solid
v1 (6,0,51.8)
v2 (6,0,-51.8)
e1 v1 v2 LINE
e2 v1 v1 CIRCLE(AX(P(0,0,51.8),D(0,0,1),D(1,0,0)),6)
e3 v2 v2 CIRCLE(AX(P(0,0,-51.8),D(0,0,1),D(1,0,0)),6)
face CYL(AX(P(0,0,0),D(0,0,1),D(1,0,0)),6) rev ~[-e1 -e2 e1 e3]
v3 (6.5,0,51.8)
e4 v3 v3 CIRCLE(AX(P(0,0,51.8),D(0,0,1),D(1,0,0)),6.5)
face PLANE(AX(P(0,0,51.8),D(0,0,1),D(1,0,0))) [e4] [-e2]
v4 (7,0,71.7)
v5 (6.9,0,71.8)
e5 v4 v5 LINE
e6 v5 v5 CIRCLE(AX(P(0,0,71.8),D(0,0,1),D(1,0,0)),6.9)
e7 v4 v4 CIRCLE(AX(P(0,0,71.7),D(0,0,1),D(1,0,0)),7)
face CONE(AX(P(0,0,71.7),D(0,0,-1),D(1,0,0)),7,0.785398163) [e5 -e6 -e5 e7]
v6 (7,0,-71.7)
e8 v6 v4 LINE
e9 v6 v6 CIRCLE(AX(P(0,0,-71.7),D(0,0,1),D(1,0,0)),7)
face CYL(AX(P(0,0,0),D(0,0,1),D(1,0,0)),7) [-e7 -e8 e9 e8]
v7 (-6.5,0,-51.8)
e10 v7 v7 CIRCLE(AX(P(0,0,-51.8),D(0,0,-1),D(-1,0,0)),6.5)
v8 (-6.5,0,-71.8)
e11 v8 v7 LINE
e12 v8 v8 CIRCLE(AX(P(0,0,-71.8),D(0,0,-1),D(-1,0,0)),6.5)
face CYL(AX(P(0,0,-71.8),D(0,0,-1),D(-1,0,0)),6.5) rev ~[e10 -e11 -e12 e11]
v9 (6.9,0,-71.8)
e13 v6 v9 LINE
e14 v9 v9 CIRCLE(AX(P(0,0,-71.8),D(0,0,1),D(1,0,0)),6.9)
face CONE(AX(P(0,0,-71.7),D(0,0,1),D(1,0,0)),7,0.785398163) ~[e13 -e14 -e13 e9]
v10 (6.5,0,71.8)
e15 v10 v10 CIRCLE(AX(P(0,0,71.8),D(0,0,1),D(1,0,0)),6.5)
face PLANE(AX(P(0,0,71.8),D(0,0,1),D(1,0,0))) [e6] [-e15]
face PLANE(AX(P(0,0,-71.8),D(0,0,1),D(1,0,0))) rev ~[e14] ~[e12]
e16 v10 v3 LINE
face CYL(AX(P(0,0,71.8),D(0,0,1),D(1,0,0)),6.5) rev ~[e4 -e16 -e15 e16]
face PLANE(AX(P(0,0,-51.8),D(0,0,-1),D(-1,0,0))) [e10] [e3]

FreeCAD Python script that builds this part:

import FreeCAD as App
import Part
import Sketcher

V = App.Vector


def edges_at(feature, points):
    """Names of the edges that pass closest to the given points."""
    edges = feature.Shape.Edges
    near = lambda p: min(range(len(edges)), key=lambda i: edges[i].distToShape(Part.Vertex(*p))[0])
    return sorted({f"Edge{near(p) + 1}" for p in points})

doc = App.newDocument("Part")
params = doc.addObject("Spreadsheet::Sheet", "Params")
for row, (alias, value) in enumerate([
    ("sketch1_diameter", "14 mm"),
    ("sketch1_diameter2", "12 mm"),
    ("pad1_length", "143.6 mm"),
    ("chamfer_size", "0.1 mm"),
    ("sketch2_diameter", "13 mm"),
    ("sketch2_diameter2", "12 mm"),
    ("pocket1_length", "20 mm"),
    ("sketch3_diameter", "13 mm"),
    ("pocket2_length", "20 mm"),
], start=1):
    params.set(f"A{row}", alias)
    params.set(f"B{row}", "=" + value)
    params.setAlias(f"B{row}", alias)

body = doc.addObject("PartDesign::Body", "Body")

# Sketch on XY plane
sketch1 = doc.addObject("Sketcher::SketchObject", "Sketch")
body.addObject(sketch1)
sketch1.AttachmentSupport = (doc.XY_Plane, [""])
sketch1.MapMode = "FlatFace"
sketch1.addGeometry(Part.Circle(V(0, 0, 0), V(0, 0, 1), 7), False)
sketch1.addGeometry(Part.Circle(V(0, 0, 0), V(0, 0, 1), 6), False)
sketch1.addConstraint(Sketcher.Constraint("Coincident", 0, 3, -1, 1))
sketch1.addConstraint(Sketcher.Constraint("Coincident", 1, 3, -1, 1))
sketch1.addConstraint(Sketcher.Constraint("Diameter", 0, 14.0))
sketch1.addConstraint(Sketcher.Constraint("Diameter", 1, 12.0))
sketch1.setExpression("Constraints[2]", "Params.sketch1_diameter")
sketch1.setExpression("Constraints[3]", "Params.sketch1_diameter2")
pad1 = doc.addObject("PartDesign::Pad", "Pad")
body.addObject(pad1)
pad1.Profile = sketch1
pad1.setExpression("Length", "Params.pad1_length")
pad1.Midplane = True
doc.recompute()

chamfer = doc.addObject("PartDesign::Chamfer", "Chamfer")
body.addObject(chamfer)
chamfer.Base = (pad1, edges_at(pad1, [
    (-6, 0, 71.8),
    (-7, 0, 71.8),
    (-7, 0, -71.8),
    (-6, 0, -71.8),
]))
chamfer.setExpression("Size", "Params.chamfer_size")

# Sketch on XY plane
sketch2 = doc.addObject("Sketcher::SketchObject", "Sketch001")
body.addObject(sketch2)
sketch2.AttachmentSupport = (doc.XY_Plane, [""])
sketch2.MapMode = "FlatFace"
sketch2.AttachmentOffset = App.Placement(V(0, 0, 71.8), App.Rotation())
sketch2.addGeometry(Part.Circle(V(0, 0, 0), V(0, 0, 1), 6), False)
sketch2.addGeometry(Part.Circle(V(0, 0, 0), V(0, 0, 1), 6), False)
sketch2.addConstraint(Sketcher.Constraint("Coincident", 0, 3, -1, 1))
sketch2.addConstraint(Sketcher.Constraint("Coincident", 1, 3, -1, 1))
sketch2.addConstraint(Sketcher.Constraint("Diameter", 0, 13.0))
sketch2.addConstraint(Sketcher.Constraint("Diameter", 1, 12.0))
sketch2.setExpression("Constraints[2]", "Params.sketch2_diameter")
sketch2.setExpression("Constraints[3]", "Params.sketch2_diameter2")
pocket1 = doc.addObject("PartDesign::Pocket", "Pocket")
body.addObject(pocket1)
pocket1.Profile = sketch2
pocket1.setExpression("Length", "Params.pocket1_length")

# Sketch on XY plane
sketch3 = doc.addObject("Sketcher::SketchObject", "Sketch002")
body.addObject(sketch3)
sketch3.AttachmentSupport = (doc.XY_Plane, [""])
sketch3.MapMode = "FlatFace"
sketch3.AttachmentOffset = App.Placement(V(0, 0, -71.8), App.Rotation())
sketch3.addGeometry(Part.Circle(V(0, 0, 0), V(0, 0, 1), 6), False)
sketch3.addConstraint(Sketcher.Constraint("Coincident", 0, 3, -1, 1))
sketch3.addConstraint(Sketcher.Constraint("Diameter", 0, 13.0))
sketch3.setExpression("Constraints[1]", "Params.sketch3_diameter")
pocket2 = doc.addObject("PartDesign::Pocket", "Pocket001")
body.addObject(pocket2)
pocket2.Profile = sketch3
pocket2.setExpression("Length", "Params.pocket2_length")
pocket2.Reversed = True

doc.recompute()
